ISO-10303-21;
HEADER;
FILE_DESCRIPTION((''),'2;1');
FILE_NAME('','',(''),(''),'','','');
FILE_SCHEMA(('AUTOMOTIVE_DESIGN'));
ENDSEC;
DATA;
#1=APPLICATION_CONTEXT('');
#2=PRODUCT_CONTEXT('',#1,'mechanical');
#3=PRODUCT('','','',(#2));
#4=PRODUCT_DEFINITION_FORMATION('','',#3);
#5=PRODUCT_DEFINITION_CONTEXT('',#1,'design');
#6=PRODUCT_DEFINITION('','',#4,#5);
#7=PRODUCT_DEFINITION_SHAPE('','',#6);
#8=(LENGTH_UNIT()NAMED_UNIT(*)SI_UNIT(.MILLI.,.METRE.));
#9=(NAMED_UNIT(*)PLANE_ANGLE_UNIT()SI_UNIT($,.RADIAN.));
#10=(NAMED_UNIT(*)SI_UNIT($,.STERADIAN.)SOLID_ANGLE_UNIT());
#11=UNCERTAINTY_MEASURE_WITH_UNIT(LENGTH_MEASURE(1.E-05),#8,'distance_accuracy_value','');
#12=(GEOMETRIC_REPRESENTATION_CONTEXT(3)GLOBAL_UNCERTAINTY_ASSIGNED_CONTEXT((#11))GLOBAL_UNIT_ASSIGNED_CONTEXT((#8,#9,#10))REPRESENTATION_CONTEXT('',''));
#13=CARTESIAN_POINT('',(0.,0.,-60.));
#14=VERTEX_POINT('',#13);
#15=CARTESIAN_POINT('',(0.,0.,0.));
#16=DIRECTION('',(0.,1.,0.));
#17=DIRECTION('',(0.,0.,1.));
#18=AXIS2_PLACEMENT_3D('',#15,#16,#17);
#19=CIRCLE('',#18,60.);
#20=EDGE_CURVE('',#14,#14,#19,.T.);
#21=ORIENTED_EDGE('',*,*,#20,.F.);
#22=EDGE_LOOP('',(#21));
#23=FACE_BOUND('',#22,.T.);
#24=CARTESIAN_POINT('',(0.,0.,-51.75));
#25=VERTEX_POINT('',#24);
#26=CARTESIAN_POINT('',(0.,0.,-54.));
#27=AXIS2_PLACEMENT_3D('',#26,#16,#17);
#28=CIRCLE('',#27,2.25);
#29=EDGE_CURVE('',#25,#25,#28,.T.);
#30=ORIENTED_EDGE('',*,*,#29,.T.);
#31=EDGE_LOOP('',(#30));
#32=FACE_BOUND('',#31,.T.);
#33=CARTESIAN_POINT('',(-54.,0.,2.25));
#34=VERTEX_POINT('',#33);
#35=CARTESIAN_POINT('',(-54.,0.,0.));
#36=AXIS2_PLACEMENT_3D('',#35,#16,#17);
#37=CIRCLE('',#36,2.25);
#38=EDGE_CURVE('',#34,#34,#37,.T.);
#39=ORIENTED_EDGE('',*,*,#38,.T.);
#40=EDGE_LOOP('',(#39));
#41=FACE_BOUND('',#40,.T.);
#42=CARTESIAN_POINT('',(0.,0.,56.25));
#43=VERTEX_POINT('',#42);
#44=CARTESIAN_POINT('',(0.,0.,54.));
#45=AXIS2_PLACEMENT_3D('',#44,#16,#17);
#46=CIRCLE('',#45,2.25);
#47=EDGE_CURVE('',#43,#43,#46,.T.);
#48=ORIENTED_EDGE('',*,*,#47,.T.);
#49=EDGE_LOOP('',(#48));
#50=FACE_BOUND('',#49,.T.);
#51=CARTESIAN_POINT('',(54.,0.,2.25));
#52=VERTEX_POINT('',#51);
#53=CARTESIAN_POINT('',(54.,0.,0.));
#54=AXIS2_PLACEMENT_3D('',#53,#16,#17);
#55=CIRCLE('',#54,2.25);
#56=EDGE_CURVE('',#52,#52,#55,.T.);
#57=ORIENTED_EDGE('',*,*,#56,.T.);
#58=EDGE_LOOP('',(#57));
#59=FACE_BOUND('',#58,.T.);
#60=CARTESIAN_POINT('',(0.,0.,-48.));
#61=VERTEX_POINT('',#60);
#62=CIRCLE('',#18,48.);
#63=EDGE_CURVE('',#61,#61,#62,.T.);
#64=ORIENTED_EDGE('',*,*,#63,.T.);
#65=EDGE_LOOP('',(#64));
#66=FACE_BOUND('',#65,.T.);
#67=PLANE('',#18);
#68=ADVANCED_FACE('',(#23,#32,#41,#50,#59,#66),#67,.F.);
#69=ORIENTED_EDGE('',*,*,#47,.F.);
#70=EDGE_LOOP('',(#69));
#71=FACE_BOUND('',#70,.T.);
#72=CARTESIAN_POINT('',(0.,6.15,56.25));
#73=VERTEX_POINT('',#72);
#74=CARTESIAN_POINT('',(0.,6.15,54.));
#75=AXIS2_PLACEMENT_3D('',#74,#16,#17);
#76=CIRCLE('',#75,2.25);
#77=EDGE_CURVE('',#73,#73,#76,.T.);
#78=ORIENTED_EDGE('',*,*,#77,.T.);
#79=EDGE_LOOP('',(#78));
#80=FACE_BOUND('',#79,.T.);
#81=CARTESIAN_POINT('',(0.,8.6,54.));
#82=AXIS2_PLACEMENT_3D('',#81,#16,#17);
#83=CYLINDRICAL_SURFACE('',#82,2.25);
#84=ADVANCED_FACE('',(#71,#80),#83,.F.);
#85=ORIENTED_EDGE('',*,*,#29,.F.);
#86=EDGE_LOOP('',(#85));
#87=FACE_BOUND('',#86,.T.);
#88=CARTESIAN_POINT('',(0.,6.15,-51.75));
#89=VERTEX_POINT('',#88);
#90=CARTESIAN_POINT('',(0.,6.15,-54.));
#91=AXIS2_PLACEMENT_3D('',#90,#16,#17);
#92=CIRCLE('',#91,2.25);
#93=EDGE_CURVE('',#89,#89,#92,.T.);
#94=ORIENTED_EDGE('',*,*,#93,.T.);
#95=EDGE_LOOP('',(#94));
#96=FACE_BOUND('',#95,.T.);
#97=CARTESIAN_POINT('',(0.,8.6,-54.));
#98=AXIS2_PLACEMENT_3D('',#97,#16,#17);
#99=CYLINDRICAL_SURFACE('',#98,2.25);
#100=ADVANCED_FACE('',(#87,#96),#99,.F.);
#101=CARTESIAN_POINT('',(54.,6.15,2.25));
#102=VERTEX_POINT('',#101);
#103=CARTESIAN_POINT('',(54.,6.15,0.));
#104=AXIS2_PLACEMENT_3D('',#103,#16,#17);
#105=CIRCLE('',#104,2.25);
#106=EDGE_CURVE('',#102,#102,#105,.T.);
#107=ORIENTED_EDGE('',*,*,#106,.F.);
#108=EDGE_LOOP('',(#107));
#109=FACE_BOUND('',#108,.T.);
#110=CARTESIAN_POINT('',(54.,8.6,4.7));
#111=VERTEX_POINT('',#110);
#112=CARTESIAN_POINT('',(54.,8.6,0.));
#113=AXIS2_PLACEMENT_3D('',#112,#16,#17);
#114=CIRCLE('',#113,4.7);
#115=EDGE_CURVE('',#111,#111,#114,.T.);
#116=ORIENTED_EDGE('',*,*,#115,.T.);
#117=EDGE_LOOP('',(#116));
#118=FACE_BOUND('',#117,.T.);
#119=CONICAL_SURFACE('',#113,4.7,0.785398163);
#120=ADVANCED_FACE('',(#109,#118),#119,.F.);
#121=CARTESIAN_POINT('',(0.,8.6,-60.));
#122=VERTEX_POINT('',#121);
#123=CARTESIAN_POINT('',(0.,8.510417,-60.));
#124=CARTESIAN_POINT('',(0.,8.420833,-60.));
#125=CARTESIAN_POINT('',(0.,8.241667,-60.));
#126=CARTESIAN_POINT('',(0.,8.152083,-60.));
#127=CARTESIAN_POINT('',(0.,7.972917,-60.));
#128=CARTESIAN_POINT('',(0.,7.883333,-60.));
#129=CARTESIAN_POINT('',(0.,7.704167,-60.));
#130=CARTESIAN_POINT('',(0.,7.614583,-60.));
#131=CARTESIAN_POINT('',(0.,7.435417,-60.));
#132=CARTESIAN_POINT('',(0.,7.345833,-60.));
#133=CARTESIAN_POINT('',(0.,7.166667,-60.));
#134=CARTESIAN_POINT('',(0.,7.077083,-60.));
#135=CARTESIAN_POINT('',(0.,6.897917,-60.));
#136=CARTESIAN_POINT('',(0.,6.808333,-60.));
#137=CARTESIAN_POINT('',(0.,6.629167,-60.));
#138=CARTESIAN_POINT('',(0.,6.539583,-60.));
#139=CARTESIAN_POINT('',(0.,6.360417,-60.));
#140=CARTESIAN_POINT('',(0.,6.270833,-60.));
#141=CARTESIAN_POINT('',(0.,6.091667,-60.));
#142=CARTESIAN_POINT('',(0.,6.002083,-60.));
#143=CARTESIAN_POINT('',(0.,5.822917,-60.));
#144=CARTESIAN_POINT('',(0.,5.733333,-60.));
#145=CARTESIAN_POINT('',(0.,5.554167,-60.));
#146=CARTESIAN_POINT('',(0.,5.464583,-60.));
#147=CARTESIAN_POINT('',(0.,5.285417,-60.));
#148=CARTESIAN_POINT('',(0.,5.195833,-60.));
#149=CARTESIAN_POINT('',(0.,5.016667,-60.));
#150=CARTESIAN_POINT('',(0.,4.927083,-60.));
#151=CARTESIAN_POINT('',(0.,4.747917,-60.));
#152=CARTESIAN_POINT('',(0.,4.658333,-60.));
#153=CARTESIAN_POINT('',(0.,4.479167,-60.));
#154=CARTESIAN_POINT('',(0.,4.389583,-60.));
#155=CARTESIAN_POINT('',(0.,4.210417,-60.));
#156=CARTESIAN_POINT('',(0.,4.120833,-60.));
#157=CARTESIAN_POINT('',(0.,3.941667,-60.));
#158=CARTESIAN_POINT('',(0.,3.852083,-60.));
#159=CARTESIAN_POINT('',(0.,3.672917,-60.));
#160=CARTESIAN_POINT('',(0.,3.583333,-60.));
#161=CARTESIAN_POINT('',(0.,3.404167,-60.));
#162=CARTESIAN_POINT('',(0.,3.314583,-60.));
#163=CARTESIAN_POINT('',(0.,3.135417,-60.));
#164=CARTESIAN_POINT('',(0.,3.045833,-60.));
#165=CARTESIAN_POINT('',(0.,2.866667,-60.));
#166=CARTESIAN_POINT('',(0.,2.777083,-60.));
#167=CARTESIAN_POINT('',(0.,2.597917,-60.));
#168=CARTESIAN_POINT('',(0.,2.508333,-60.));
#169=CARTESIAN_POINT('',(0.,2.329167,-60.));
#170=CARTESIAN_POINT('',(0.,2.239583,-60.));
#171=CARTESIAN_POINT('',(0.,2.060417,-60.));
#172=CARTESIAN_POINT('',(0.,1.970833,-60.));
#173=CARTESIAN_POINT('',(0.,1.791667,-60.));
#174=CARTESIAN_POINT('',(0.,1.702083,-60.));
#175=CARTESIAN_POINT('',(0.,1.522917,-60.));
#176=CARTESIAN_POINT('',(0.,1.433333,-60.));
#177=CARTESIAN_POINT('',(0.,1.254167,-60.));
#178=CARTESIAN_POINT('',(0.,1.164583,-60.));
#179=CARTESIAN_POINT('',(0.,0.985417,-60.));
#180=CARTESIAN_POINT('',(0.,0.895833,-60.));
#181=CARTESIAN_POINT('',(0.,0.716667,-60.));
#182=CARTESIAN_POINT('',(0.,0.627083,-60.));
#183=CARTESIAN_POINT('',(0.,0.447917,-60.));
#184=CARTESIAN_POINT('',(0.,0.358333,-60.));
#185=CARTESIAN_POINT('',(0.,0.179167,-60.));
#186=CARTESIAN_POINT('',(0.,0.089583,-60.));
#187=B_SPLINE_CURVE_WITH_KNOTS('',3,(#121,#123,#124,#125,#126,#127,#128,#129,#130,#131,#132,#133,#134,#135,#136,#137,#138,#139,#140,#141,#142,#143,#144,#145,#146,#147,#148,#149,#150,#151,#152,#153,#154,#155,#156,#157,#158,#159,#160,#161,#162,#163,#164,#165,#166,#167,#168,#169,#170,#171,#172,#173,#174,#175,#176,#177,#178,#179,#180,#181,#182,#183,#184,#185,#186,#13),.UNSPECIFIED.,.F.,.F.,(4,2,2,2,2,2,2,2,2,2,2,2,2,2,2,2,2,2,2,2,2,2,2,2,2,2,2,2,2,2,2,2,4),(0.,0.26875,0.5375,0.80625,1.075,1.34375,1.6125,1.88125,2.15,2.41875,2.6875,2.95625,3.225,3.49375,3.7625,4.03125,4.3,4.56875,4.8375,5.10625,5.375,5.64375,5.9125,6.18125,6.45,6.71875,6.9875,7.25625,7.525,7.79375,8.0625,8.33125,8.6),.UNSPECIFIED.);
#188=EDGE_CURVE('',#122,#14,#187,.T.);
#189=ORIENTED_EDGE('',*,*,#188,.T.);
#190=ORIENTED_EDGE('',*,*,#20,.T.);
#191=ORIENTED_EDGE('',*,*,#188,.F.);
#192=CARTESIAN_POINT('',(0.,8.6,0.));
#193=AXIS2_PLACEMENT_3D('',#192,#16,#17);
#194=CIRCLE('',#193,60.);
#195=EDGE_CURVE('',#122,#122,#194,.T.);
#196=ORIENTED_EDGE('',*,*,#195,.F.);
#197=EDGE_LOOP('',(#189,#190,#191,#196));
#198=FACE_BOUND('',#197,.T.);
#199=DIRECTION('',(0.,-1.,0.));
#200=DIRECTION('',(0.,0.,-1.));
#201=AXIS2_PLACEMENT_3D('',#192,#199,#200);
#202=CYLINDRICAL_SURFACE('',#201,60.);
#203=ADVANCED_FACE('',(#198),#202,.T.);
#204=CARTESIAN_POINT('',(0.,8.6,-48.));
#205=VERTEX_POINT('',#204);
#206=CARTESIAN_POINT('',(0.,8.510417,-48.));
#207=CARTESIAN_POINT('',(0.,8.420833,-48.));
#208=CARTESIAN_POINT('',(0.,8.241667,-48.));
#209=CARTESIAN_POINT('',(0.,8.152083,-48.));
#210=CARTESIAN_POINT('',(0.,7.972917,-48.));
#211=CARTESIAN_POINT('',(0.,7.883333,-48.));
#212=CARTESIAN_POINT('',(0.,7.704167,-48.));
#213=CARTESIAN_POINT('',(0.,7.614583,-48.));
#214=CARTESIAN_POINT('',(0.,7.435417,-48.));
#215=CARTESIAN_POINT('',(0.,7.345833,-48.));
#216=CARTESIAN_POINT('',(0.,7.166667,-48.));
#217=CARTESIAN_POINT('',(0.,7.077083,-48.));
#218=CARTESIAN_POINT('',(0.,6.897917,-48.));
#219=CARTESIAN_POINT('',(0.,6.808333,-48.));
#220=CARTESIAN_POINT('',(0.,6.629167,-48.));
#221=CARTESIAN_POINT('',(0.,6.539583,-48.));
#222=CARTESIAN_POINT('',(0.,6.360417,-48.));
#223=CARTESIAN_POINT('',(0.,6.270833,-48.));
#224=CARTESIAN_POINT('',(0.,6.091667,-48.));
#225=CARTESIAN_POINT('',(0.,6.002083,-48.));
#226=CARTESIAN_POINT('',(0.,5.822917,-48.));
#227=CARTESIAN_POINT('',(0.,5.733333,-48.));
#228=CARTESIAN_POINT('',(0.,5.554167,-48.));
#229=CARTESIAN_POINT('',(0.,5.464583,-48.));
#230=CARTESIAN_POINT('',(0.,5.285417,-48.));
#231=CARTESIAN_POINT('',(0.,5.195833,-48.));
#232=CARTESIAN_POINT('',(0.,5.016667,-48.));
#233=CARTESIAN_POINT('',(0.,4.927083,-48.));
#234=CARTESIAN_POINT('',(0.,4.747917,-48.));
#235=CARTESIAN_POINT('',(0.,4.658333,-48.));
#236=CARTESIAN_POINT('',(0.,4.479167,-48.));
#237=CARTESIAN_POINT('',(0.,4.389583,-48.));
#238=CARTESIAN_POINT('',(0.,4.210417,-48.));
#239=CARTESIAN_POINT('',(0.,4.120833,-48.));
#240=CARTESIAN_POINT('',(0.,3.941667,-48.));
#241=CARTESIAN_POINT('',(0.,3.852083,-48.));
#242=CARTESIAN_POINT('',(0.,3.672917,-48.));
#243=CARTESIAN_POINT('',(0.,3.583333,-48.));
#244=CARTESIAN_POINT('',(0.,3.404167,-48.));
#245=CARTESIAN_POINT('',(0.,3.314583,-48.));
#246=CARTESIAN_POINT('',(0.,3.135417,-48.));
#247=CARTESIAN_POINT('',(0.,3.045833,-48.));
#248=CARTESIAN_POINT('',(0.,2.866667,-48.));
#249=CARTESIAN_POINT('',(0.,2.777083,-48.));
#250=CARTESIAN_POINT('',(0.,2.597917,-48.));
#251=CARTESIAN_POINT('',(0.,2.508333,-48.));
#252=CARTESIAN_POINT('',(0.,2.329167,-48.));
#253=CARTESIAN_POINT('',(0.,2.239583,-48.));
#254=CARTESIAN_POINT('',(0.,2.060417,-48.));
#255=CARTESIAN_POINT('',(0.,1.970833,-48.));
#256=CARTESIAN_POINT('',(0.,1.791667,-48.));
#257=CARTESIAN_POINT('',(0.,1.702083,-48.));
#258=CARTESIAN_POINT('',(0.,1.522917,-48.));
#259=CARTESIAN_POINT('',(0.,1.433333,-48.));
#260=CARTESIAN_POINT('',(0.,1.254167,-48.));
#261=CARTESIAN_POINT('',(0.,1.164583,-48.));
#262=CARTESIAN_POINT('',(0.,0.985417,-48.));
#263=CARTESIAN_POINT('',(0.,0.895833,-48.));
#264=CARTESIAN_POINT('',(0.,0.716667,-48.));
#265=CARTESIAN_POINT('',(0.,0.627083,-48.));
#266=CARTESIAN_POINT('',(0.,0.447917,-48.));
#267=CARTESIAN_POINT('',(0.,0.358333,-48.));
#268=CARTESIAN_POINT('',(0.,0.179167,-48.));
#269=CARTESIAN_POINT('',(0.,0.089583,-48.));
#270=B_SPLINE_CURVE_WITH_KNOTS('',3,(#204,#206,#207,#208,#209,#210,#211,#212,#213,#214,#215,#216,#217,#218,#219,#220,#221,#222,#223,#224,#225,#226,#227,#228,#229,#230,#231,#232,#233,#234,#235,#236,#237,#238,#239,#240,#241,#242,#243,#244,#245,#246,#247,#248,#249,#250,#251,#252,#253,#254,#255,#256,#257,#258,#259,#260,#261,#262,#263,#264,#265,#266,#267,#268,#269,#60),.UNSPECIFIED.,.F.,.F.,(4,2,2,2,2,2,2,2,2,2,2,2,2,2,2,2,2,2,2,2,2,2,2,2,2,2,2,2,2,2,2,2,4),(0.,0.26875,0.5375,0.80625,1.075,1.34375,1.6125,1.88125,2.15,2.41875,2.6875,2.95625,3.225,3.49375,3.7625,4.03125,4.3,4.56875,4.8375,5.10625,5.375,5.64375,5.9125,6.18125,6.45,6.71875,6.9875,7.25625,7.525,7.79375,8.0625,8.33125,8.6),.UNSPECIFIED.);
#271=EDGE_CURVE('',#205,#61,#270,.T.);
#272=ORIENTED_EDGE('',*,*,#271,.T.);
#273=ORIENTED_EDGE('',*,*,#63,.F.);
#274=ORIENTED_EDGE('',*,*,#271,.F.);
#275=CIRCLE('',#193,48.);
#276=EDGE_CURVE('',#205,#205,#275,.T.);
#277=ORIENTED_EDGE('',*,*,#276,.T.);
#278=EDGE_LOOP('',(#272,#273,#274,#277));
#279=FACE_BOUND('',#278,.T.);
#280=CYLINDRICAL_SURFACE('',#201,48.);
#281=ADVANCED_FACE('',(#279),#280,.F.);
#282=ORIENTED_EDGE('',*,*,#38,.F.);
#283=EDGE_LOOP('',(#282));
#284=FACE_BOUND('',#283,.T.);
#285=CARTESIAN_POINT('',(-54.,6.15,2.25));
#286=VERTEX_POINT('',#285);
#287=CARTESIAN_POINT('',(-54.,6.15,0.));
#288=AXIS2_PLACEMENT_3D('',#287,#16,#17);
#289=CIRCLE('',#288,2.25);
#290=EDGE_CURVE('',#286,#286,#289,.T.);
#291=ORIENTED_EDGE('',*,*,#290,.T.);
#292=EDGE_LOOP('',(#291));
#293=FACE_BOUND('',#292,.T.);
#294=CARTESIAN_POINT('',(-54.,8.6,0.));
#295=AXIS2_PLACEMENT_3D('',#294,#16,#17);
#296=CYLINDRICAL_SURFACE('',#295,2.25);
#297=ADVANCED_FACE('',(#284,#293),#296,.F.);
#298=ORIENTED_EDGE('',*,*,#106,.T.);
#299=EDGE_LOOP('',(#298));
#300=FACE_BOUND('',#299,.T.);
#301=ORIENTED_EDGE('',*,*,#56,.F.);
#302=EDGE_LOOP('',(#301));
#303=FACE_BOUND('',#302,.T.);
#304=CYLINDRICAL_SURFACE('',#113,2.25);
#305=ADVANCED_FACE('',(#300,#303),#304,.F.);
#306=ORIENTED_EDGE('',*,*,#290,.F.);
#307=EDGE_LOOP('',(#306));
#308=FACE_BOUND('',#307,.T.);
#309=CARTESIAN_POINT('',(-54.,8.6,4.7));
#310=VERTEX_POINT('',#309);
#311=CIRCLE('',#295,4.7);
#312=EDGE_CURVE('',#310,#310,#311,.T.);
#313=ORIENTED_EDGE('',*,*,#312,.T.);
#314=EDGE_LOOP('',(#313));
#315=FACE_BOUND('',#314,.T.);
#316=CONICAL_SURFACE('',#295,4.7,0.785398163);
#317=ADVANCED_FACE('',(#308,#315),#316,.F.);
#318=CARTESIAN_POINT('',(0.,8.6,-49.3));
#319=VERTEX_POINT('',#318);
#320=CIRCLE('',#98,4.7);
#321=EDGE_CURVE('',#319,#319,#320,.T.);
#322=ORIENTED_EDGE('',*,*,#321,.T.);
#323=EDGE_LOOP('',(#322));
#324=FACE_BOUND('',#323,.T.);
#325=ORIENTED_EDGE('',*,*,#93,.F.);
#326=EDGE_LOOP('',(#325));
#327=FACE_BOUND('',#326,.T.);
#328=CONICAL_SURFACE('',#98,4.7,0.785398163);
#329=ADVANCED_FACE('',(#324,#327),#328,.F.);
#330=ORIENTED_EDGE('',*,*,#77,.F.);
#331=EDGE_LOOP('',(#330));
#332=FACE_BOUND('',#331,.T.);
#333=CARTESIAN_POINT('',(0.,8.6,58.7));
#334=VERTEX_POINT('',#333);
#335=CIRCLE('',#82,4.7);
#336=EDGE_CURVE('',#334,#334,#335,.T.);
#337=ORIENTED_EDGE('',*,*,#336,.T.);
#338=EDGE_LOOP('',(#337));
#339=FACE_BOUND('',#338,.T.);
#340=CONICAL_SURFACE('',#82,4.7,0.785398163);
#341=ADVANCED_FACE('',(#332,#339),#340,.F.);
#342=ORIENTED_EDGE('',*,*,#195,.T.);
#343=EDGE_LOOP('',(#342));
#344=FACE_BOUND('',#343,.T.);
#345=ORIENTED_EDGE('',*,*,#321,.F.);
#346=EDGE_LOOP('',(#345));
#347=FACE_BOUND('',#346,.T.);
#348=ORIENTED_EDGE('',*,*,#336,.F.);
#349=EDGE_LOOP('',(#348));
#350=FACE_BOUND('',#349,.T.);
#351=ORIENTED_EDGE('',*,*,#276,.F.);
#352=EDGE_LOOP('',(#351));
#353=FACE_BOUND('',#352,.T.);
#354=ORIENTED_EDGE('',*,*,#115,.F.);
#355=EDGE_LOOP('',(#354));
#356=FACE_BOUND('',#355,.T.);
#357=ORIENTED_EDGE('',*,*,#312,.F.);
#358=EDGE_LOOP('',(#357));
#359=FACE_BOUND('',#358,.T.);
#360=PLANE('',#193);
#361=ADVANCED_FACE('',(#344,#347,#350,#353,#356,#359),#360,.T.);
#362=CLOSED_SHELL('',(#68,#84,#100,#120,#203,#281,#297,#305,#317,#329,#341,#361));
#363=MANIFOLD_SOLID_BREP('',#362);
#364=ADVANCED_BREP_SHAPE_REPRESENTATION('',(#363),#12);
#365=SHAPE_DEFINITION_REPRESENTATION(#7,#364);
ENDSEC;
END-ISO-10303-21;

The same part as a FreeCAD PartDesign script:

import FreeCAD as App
import Part
import Sketcher

doc = App.newDocument("Part")
body = doc.addObject("PartDesign::Body", "Body")

# Sketch on XZ plane
sketch1 = doc.addObject("Sketcher::SketchObject", "Sketch")
body.addObject(sketch1)
sketch1.AttachmentSupport = (doc.XZ_Plane, [""])
sketch1.MapMode = "FlatFace"
sketch1.addGeometry([
    Part.Circle(App.Vector(0, 0, 0), App.Vector(0, 0, 1), 60),
    Part.Circle(App.Vector(0, 0, 0), App.Vector(0, 0, 1), 48),
], False)
sketch1.addConstraint([
    Sketcher.Constraint("Coincident", 0, 3, -1, 1),
    Sketcher.Constraint("Coincident", 1, 3, -1, 1),
    Sketcher.Constraint("Diameter", 0, 120.0),
    Sketcher.Constraint("Diameter", 1, 96.0),
])
pad1 = doc.addObject("PartDesign::Pad", "Pad")
body.addObject(pad1)
pad1.Profile = sketch1
pad1.Length = 8.6
pad1.Reversed = True

# Sketch on XZ plane
sketch2 = doc.addObject("Sketcher::SketchObject", "Sketch001")
body.addObject(sketch2)
sketch2.AttachmentSupport = (doc.XZ_Plane, [""])
sketch2.MapMode = "FlatFace"
sketch2.AttachmentOffset = App.Placement(App.Vector(0, 0, -8.6), App.Rotation())
sketch2.addGeometry([
    Part.Circle(App.Vector(0, -54, 0), App.Vector(0, 0, 1), 2.2),
    Part.Circle(App.Vector(0, 54, 0), App.Vector(0, 0, 1), 2.2),
    Part.Circle(App.Vector(-54, 0, 0), App.Vector(0, 0, 1), 2.2),
    Part.Circle(App.Vector(54, 0, 0), App.Vector(0, 0, 1), 2.2),
], False)
sketch2.addConstraint([
    Sketcher.Constraint("Equal", 0, 1),
    Sketcher.Constraint("Equal", 1, 2),
    Sketcher.Constraint("Equal", 2, 3),
    Sketcher.Constraint("Symmetric", 0, 3, 1, 3, -1, 1),
    Sketcher.Constraint("Symmetric", 2, 3, 3, 3, -1, 1),
    Sketcher.Constraint("PointOnObject", 0, 3, -2),
    Sketcher.Constraint("PointOnObject", 2, 3, -1),
    Sketcher.Constraint("Diameter", 0, 4.5),
    Sketcher.Constraint("DistanceY", 0, 3, -1, 1, 54.0),
    Sketcher.Constraint("DistanceX", 2, 3, -1, 1, 54.0),
])
doc.recompute()
hole = doc.addObject("PartDesign::Hole", "Hole")
body.addObject(hole)
hole.Profile = sketch2
hole.ThreadType = "None"
hole.Diameter = 4.5
hole.DepthType = "ThroughAll"
hole.HoleCutType = "Countersink"
hole.HoleCutDiameter = 9.4
hole.HoleCutCountersinkAngle = 90
hole.Reversed = True

doc.recompute()
